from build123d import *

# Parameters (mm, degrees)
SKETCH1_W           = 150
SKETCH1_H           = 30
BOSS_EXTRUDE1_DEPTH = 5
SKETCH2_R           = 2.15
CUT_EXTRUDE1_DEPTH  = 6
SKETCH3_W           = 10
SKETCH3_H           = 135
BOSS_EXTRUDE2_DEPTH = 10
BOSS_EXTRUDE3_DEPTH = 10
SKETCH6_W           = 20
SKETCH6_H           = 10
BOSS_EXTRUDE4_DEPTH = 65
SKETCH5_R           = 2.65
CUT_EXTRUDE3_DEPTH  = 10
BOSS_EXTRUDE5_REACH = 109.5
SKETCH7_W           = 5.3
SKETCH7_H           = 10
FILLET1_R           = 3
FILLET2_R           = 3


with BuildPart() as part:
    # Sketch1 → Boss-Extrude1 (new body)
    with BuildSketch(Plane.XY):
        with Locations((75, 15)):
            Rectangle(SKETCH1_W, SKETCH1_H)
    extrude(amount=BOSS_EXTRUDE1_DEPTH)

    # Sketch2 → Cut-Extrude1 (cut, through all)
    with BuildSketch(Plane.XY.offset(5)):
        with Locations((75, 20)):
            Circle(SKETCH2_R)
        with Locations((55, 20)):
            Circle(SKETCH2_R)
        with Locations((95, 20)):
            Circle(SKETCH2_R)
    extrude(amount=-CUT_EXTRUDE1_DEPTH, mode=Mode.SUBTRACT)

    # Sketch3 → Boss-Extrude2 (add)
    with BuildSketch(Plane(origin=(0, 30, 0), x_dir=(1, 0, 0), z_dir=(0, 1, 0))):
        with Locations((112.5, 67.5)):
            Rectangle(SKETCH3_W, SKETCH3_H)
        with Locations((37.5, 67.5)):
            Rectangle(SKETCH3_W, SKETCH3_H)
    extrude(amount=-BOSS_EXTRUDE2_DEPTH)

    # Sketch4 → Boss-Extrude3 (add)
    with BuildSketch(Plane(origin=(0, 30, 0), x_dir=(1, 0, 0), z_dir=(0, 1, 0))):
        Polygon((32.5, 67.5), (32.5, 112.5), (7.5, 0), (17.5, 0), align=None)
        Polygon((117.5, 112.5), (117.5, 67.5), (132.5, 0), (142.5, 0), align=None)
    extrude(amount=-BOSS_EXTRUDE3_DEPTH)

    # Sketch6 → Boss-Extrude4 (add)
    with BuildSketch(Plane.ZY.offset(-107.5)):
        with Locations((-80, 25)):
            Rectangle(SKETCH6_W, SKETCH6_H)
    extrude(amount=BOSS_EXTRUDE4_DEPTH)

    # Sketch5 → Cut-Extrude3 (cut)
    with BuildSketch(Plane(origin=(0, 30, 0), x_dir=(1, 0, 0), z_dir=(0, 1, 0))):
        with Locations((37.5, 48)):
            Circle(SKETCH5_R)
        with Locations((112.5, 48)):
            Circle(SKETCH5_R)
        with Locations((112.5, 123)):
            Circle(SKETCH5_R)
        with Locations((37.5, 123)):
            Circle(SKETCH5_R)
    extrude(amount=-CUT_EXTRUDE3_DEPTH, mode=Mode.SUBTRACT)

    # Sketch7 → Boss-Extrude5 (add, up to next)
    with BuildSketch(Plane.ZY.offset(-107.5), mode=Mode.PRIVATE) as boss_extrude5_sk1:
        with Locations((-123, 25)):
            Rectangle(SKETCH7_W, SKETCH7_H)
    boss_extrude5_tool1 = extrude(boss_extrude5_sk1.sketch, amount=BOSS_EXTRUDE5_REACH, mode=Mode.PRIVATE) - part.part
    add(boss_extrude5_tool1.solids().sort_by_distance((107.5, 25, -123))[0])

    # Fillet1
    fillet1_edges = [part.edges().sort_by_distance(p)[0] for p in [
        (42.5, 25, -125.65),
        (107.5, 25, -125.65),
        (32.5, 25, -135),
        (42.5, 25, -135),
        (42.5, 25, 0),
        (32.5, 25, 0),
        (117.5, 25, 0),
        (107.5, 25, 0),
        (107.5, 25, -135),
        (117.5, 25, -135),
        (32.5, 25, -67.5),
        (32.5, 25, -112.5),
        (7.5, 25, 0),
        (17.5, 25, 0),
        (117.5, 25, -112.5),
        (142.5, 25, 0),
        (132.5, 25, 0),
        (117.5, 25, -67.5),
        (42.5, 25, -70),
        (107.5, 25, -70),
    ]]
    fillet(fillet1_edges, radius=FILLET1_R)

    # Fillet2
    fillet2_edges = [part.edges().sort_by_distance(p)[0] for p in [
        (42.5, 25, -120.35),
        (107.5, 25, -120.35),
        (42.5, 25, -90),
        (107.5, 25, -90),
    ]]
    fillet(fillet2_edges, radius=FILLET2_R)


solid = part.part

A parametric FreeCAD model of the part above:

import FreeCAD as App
import Part
import Sketcher

V = App.Vector


def edges_at(feature, points):
    """Names of the edges that pass closest to the given points."""
    edges = feature.Shape.Edges
    near = lambda p: min(range(len(edges)), key=lambda i: edges[i].distToShape(Part.Vertex(*p))[0])
    return sorted({f"Edge{near(p) + 1}" for p in points})

doc = App.newDocument("Part")
body = doc.addObject("PartDesign::Body", "Body")

sketch1 = doc.addObject("Sketcher::SketchObject", "Sketch")
body.addObject(sketch1)
sketch1.AttachmentSupport = (doc.XY_Plane, [""])
sketch1.MapMode = "FlatFace"
sketch1.addGeometry([
    Part.LineSegment(V(0, 30, 0), V(0, 0, 0)),
    Part.LineSegment(V(0, 0, 0), V(150, 0, 0)),
    Part.LineSegment(V(150, 0, 0), V(150, 30, 0)),
    Part.LineSegment(V(150, 30, 0), V(0, 30, 0)),
], False)
sketch1.addConstraint([
    Sketcher.Constraint("Coincident", 0, 2, 1, 1),
    Sketcher.Constraint("Coincident", 1, 2, 2, 1),
    Sketcher.Constraint("Coincident", 2, 2, 3, 1),
    Sketcher.Constraint("Coincident", 3, 2, 0, 1),
    Sketcher.Constraint("Vertical", 0),
    Sketcher.Constraint("Horizontal", 1),
    Sketcher.Constraint("Vertical", 2),
    Sketcher.Constraint("Horizontal", 3),
    Sketcher.Constraint("Coincident", 0, 2, -1, 1),
    Sketcher.Constraint("DistanceX", 1, 1, 1, 2, 150.0),
    Sketcher.Constraint("DistanceY", 0, 2, 0, 1, 30.0),
])
pad1 = doc.addObject("PartDesign::Pad", "Pad")
body.addObject(pad1)
pad1.Profile = sketch1
pad1.Length = 5

sketch2 = doc.addObject("Sketcher::SketchObject", "Sketch001")
body.addObject(sketch2)
sketch2.AttachmentSupport = (doc.XY_Plane, [""])
sketch2.MapMode = "FlatFace"
sketch2.AttachmentOffset = App.Placement(V(0, 0, 5), App.Rotation())
sketch2.addGeometry([
    Part.Circle(V(75, 20, 0), V(0, 0, 1), 2.1),
    Part.Circle(V(55, 20, 0), V(0, 0, 1), 2.1),
    Part.Circle(V(95, 20, 0), V(0, 0, 1), 2.1),
], False)
sketch2.addConstraint([
    Sketcher.Constraint("Equal", 0, 1),
    Sketcher.Constraint("Equal", 1, 2),
    Sketcher.Constraint("Horizontal", 0, 3, 1, 3),
    Sketcher.Constraint("Horizontal", 1, 3, 2, 3),
    Sketcher.Constraint("Diameter", 0, 4.3),
    Sketcher.Constraint("DistanceX", -1, 1, 0, 3, 75.0),
    Sketcher.Constraint("DistanceY", -1, 1, 0, 3, 20.0),
    Sketcher.Constraint("DistanceX", -1, 1, 1, 3, 55.0),
    Sketcher.Constraint("DistanceX", -1, 1, 2, 3, 95.0),
])
pocket1 = doc.addObject("PartDesign::Pocket", "Pocket")
body.addObject(pocket1)
pocket1.Profile = sketch2
pocket1.Type = "ThroughAll"

sketch3 = doc.addObject("Sketcher::SketchObject", "Sketch002")
body.addObject(sketch3)
sketch3.AttachmentSupport = (doc.XZ_Plane, [""])
sketch3.MapMode = "FlatFace"
sketch3.AttachmentOffset = App.Placement(V(0, 0, -30), App.Rotation())
sketch3.addGeometry([
    Part.LineSegment(V(108, -135, 0), V(108, 0, 0)),
    Part.LineSegment(V(108, 0, 0), V(118, 0, 0)),
    Part.LineSegment(V(118, 0, 0), V(118, -135, 0)),
    Part.LineSegment(V(118, -135, 0), V(108, -135, 0)),
    Part.LineSegment(V(32, -135, 0), V(32, 0, 0)),
    Part.LineSegment(V(32, 0, 0), V(42, 0, 0)),
    Part.LineSegment(V(42, 0, 0), V(42, -135, 0)),
    Part.LineSegment(V(42, -135, 0), V(32, -135, 0)),
], False)
sketch3.addConstraint([
    Sketcher.Constraint("Coincident", 0, 2, 1, 1),
    Sketcher.Constraint("Coincident", 1, 2, 2, 1),
    Sketcher.Constraint("Coincident", 2, 2, 3, 1),
    Sketcher.Constraint("Coincident", 3, 2, 0, 1),
    Sketcher.Constraint("Coincident", 4, 2, 5, 1),
    Sketcher.Constraint("Coincident", 5, 2, 6, 1),
    Sketcher.Constraint("Coincident", 6, 2, 7, 1),
    Sketcher.Constraint("Coincident", 7, 2, 4, 1),
    Sketcher.Constraint("Vertical", 0),
    Sketcher.Constraint("Horizontal", 1),
    Sketcher.Constraint("Vertical", 2),
    Sketcher.Constraint("Horizontal", 3),
    Sketcher.Constraint("Vertical", 4),
    Sketcher.Constraint("Horizontal", 5),
    Sketcher.Constraint("Vertical", 6),
    Sketcher.Constraint("Horizontal", 7),
    Sketcher.Constraint("PointOnObject", 0, 2, -1),
    Sketcher.Constraint("PointOnObject", 4, 2, -1),
    Sketcher.Constraint("Horizontal", 3, 2, 6, 2),
    Sketcher.Constraint("Equal", 3, 5),
    Sketcher.Constraint("DistanceX", 1, 1, 1, 2, 10.0),
    Sketcher.Constraint("DistanceY", 0, 1, 0, 2, 135.0),
    Sketcher.Constraint("DistanceX", 4, 2, 0, 2, 75.0),
    Sketcher.Constraint("DistanceX", -1, 1, 0, 2, 107.5),
])
pad2 = doc.addObject("PartDesign::Pad", "Pad001")
body.addObject(pad2)
pad2.Profile = sketch3
pad2.Length = 10

sketch4 = doc.addObject("Sketcher::SketchObject", "Sketch003")
body.addObject(sketch4)
sketch4.AttachmentSupport = (doc.XZ_Plane, [""])
sketch4.MapMode = "FlatFace"
sketch4.AttachmentOffset = App.Placement(V(0, 0, -30), App.Rotation())
sketch4.addGeometry([
    Part.LineSegment(V(32, -68, 0), V(32, -112, 0)),
    Part.LineSegment(V(32, -112, 0), V(8, 0, 0)),
    Part.LineSegment(V(8, 0, 0), V(18, 0, 0)),
    Part.LineSegment(V(18, 0, 0), V(32, -68, 0)),
    Part.LineSegment(V(118, -112, 0), V(118, -68, 0)),
    Part.LineSegment(V(118, -68, 0), V(132, 0, 0)),
    Part.LineSegment(V(132, 0, 0), V(142, 0, 0)),
    Part.LineSegment(V(142, 0, 0), V(118, -112, 0)),
], False)
sketch4.addConstraint([
    Sketcher.Constraint("Coincident", 0, 2, 1, 1),
    Sketcher.Constraint("Coincident", 1, 2, 2, 1),
    Sketcher.Constraint("Coincident", 2, 2, 3, 1),
    Sketcher.Constraint("Coincident", 3, 2, 0, 1),
    Sketcher.Constraint("Coincident", 4, 2, 5, 1),
    Sketcher.Constraint("Coincident", 5, 2, 6, 1),
    Sketcher.Constraint("Coincident", 6, 2, 7, 1),
    Sketcher.Constraint("Coincident", 7, 2, 4, 1),
    Sketcher.Constraint("Vertical", 0),
    Sketcher.Constraint("Horizontal", 2),
    Sketcher.Constraint("Vertical", 4),
    Sketcher.Constraint("Horizontal", 6),
    Sketcher.Constraint("PointOnObject", 1, 2, -1),
    Sketcher.Constraint("PointOnObject", 5, 2, -1),
    Sketcher.Constraint("Parallel", 1, 3),
    Sketcher.Constraint("Parallel", 5, 7),
    Sketcher.Constraint("Horizontal", 3, 2, 4, 2),
    Sketcher.Constraint("Horizontal", 0, 2, 7, 2),
    Sketcher.Constraint("Equal", 2, 6),
    Sketcher.Constraint("DistanceX", 2, 1, 2, 2, 10.0),
    Sketcher.Constraint("DistanceY", 0, 2, 0, 1, 45.0),
    Sketcher.Constraint("DistanceX", 1, 2, 0, 2, 25.0),
    Sketcher.Constraint("DistanceX", 3, 2, 4, 2, 85.0),
    Sketcher.Constraint("DistanceX", -1, 1, 0, 2, 32.5),
])
pad3 = doc.addObject("PartDesign::Pad", "Pad002")
body.addObject(pad3)
pad3.Profile = sketch4
pad3.Length = 10

sketch5 = doc.addObject("Sketcher::SketchObject", "Sketch004")
body.addObject(sketch5)
sketch5.AttachmentSupport = (doc.YZ_Plane, [""])
sketch5.MapMode = "FlatFace"
sketch5.AttachmentOffset = App.Placement(V(0, 0, 107.5), App.Rotation())
sketch5.addGeometry([
    Part.LineSegment(V(30, -90, 0), V(20, -90, 0)),
    Part.LineSegment(V(20, -90, 0), V(20, -70, 0)),
    Part.LineSegment(V(20, -70, 0), V(30, -70, 0)),
    Part.LineSegment(V(30, -70, 0), V(30, -90, 0)),
], False)
sketch5.addConstraint([
    Sketcher.Constraint("Coincident", 0, 2, 1, 1),
    Sketcher.Constraint("Coincident", 1, 2, 2, 1),
    Sketcher.Constraint("Coincident", 2, 2, 3, 1),
    Sketcher.Constraint("Coincident", 3, 2, 0, 1),
    Sketcher.Constraint("Horizontal", 0),
    Sketcher.Constraint("Vertical", 1),
    Sketcher.Constraint("Horizontal", 2),
    Sketcher.Constraint("Vertical", 3),
    Sketcher.Constraint("DistanceX", 0, 2, 0, 1, 10.0),
    Sketcher.Constraint("DistanceY", 1, 1, 1, 2, 20.0),
    Sketcher.Constraint("DistanceX", -1, 1, 0, 2, 20.0),
    Sketcher.Constraint("DistanceY", 0, 2, -1, 1, 90.0),
])
pad4 = doc.addObject("PartDesign::Pad", "Pad003")
body.addObject(pad4)
pad4.Profile = sketch5
pad4.Length = 65
pad4.Reversed = True

sketch6 = doc.addObject("Sketcher::SketchObject", "Sketch005")
body.addObject(sketch6)
sketch6.AttachmentSupport = (doc.XZ_Plane, [""])
sketch6.MapMode = "FlatFace"
sketch6.AttachmentOffset = App.Placement(V(0, 0, -30), App.Rotation())
sketch6.addGeometry([
    Part.Circle(V(37.5, -48, 0), V(0, 0, 1), 2.6),
    Part.Circle(V(112.5, -48, 0), V(0, 0, 1), 2.6),
    Part.Circle(V(112.5, -123, 0), V(0, 0, 1), 2.6),
    Part.Circle(V(37.5, -123, 0), V(0, 0, 1), 2.6),
], False)
sketch6.addConstraint([
    Sketcher.Constraint("Equal", 0, 1),
    Sketcher.Constraint("Equal", 1, 2),
    Sketcher.Constraint("Equal", 2, 3),
    Sketcher.Constraint("Horizontal", 0, 3, 1, 3),
    Sketcher.Constraint("Horizontal", 2, 3, 3, 3),
    Sketcher.Constraint("Vertical", 1, 3, 2, 3),
    Sketcher.Constraint("Vertical", 0, 3, 3, 3),
    Sketcher.Constraint("Diameter", 0, 5.3),
    Sketcher.Constraint("DistanceY", 0, 3, -1, 1, 48.0),
    Sketcher.Constraint("DistanceY", 2, 3, -1, 1, 123.0),
    Sketcher.Constraint("DistanceX", 0, 3, 1, 3, 75.0),
    Sketcher.Constraint("DistanceX", -1, 1, 0, 3, 37.5),
])
pocket2 = doc.addObject("PartDesign::Pocket", "Pocket001")
body.addObject(pocket2)
pocket2.Profile = sketch6
pocket2.Length = 10
pocket2.Reversed = True

sketch7 = doc.addObject("Sketcher::SketchObject", "Sketch006")
body.addObject(sketch7)
sketch7.AttachmentSupport = (doc.YZ_Plane, [""])
sketch7.MapMode = "FlatFace"
sketch7.AttachmentOffset = App.Placement(V(0, 0, 107.5), App.Rotation())
sketch7.addGeometry([
    Part.LineSegment(V(30, -126, 0), V(20, -126, 0)),
    Part.LineSegment(V(20, -126, 0), V(20, -120, 0)),
    Part.LineSegment(V(20, -120, 0), V(30, -120, 0)),
    Part.LineSegment(V(30, -120, 0), V(30, -126, 0)),
], False)
sketch7.addConstraint([
    Sketcher.Constraint("Coincident", 0, 2, 1, 1),
    Sketcher.Constraint("Coincident", 1, 2, 2, 1),
    Sketcher.Constraint("Coincident", 2, 2, 3, 1),
    Sketcher.Constraint("Coincident", 3, 2, 0, 1),
    Sketcher.Constraint("Horizontal", 0),
    Sketcher.Constraint("Vertical", 1),
    Sketcher.Constraint("Horizontal", 2),
    Sketcher.Constraint("Vertical", 3),
    Sketcher.Constraint("DistanceX", 0, 2, 0, 1, 10.0),
    Sketcher.Constraint("DistanceY", 1, 1, 1, 2, 5.3),
    Sketcher.Constraint("DistanceX", -1, 1, 0, 2, 20.0),
    Sketcher.Constraint("DistanceY", 0, 2, -1, 1, 125.65),
])
pad5 = doc.addObject("PartDesign::Pad", "Pad004")
body.addObject(pad5)
pad5.Profile = sketch7
pad5.Type = "UpToFirst"
pad5.Reversed = True
doc.recompute()

fillet = doc.addObject("PartDesign::Fillet", "Fillet")
body.addObject(fillet)
fillet.Base = (pad5, edges_at(pad5, [
    (42.5, 25, -125.65),
    (107.5, 25, -125.65),
    (32.5, 25, -135),
    (42.5, 25, -135),
    (42.5, 25, 0),
    (32.5, 25, 0),
    (117.5, 25, 0),
    (107.5, 25, 0),
    (107.5, 25, -135),
    (117.5, 25, -135),
    (32.5, 25, -67.5),
    (32.5, 25, -112.5),
    (7.5, 25, 0),
    (17.5, 25, 0),
    (117.5, 25, -112.5),
    (142.5, 25, 0),
    (132.5, 25, 0),
    (117.5, 25, -67.5),
    (42.5, 25, -70),
    (107.5, 25, -70),
]))
fillet.Radius = 3
doc.recompute()

fillet2 = doc.addObject("PartDesign::Fillet", "Fillet001")
body.addObject(fillet2)
fillet2.Base = (fillet, edges_at(fillet, [
    (42.5, 25, -120.35),
    (107.5, 25, -120.35),
    (42.5, 25, -90),
    (107.5, 25, -90),
]))
fillet2.Radius = 3

doc.recompute()
